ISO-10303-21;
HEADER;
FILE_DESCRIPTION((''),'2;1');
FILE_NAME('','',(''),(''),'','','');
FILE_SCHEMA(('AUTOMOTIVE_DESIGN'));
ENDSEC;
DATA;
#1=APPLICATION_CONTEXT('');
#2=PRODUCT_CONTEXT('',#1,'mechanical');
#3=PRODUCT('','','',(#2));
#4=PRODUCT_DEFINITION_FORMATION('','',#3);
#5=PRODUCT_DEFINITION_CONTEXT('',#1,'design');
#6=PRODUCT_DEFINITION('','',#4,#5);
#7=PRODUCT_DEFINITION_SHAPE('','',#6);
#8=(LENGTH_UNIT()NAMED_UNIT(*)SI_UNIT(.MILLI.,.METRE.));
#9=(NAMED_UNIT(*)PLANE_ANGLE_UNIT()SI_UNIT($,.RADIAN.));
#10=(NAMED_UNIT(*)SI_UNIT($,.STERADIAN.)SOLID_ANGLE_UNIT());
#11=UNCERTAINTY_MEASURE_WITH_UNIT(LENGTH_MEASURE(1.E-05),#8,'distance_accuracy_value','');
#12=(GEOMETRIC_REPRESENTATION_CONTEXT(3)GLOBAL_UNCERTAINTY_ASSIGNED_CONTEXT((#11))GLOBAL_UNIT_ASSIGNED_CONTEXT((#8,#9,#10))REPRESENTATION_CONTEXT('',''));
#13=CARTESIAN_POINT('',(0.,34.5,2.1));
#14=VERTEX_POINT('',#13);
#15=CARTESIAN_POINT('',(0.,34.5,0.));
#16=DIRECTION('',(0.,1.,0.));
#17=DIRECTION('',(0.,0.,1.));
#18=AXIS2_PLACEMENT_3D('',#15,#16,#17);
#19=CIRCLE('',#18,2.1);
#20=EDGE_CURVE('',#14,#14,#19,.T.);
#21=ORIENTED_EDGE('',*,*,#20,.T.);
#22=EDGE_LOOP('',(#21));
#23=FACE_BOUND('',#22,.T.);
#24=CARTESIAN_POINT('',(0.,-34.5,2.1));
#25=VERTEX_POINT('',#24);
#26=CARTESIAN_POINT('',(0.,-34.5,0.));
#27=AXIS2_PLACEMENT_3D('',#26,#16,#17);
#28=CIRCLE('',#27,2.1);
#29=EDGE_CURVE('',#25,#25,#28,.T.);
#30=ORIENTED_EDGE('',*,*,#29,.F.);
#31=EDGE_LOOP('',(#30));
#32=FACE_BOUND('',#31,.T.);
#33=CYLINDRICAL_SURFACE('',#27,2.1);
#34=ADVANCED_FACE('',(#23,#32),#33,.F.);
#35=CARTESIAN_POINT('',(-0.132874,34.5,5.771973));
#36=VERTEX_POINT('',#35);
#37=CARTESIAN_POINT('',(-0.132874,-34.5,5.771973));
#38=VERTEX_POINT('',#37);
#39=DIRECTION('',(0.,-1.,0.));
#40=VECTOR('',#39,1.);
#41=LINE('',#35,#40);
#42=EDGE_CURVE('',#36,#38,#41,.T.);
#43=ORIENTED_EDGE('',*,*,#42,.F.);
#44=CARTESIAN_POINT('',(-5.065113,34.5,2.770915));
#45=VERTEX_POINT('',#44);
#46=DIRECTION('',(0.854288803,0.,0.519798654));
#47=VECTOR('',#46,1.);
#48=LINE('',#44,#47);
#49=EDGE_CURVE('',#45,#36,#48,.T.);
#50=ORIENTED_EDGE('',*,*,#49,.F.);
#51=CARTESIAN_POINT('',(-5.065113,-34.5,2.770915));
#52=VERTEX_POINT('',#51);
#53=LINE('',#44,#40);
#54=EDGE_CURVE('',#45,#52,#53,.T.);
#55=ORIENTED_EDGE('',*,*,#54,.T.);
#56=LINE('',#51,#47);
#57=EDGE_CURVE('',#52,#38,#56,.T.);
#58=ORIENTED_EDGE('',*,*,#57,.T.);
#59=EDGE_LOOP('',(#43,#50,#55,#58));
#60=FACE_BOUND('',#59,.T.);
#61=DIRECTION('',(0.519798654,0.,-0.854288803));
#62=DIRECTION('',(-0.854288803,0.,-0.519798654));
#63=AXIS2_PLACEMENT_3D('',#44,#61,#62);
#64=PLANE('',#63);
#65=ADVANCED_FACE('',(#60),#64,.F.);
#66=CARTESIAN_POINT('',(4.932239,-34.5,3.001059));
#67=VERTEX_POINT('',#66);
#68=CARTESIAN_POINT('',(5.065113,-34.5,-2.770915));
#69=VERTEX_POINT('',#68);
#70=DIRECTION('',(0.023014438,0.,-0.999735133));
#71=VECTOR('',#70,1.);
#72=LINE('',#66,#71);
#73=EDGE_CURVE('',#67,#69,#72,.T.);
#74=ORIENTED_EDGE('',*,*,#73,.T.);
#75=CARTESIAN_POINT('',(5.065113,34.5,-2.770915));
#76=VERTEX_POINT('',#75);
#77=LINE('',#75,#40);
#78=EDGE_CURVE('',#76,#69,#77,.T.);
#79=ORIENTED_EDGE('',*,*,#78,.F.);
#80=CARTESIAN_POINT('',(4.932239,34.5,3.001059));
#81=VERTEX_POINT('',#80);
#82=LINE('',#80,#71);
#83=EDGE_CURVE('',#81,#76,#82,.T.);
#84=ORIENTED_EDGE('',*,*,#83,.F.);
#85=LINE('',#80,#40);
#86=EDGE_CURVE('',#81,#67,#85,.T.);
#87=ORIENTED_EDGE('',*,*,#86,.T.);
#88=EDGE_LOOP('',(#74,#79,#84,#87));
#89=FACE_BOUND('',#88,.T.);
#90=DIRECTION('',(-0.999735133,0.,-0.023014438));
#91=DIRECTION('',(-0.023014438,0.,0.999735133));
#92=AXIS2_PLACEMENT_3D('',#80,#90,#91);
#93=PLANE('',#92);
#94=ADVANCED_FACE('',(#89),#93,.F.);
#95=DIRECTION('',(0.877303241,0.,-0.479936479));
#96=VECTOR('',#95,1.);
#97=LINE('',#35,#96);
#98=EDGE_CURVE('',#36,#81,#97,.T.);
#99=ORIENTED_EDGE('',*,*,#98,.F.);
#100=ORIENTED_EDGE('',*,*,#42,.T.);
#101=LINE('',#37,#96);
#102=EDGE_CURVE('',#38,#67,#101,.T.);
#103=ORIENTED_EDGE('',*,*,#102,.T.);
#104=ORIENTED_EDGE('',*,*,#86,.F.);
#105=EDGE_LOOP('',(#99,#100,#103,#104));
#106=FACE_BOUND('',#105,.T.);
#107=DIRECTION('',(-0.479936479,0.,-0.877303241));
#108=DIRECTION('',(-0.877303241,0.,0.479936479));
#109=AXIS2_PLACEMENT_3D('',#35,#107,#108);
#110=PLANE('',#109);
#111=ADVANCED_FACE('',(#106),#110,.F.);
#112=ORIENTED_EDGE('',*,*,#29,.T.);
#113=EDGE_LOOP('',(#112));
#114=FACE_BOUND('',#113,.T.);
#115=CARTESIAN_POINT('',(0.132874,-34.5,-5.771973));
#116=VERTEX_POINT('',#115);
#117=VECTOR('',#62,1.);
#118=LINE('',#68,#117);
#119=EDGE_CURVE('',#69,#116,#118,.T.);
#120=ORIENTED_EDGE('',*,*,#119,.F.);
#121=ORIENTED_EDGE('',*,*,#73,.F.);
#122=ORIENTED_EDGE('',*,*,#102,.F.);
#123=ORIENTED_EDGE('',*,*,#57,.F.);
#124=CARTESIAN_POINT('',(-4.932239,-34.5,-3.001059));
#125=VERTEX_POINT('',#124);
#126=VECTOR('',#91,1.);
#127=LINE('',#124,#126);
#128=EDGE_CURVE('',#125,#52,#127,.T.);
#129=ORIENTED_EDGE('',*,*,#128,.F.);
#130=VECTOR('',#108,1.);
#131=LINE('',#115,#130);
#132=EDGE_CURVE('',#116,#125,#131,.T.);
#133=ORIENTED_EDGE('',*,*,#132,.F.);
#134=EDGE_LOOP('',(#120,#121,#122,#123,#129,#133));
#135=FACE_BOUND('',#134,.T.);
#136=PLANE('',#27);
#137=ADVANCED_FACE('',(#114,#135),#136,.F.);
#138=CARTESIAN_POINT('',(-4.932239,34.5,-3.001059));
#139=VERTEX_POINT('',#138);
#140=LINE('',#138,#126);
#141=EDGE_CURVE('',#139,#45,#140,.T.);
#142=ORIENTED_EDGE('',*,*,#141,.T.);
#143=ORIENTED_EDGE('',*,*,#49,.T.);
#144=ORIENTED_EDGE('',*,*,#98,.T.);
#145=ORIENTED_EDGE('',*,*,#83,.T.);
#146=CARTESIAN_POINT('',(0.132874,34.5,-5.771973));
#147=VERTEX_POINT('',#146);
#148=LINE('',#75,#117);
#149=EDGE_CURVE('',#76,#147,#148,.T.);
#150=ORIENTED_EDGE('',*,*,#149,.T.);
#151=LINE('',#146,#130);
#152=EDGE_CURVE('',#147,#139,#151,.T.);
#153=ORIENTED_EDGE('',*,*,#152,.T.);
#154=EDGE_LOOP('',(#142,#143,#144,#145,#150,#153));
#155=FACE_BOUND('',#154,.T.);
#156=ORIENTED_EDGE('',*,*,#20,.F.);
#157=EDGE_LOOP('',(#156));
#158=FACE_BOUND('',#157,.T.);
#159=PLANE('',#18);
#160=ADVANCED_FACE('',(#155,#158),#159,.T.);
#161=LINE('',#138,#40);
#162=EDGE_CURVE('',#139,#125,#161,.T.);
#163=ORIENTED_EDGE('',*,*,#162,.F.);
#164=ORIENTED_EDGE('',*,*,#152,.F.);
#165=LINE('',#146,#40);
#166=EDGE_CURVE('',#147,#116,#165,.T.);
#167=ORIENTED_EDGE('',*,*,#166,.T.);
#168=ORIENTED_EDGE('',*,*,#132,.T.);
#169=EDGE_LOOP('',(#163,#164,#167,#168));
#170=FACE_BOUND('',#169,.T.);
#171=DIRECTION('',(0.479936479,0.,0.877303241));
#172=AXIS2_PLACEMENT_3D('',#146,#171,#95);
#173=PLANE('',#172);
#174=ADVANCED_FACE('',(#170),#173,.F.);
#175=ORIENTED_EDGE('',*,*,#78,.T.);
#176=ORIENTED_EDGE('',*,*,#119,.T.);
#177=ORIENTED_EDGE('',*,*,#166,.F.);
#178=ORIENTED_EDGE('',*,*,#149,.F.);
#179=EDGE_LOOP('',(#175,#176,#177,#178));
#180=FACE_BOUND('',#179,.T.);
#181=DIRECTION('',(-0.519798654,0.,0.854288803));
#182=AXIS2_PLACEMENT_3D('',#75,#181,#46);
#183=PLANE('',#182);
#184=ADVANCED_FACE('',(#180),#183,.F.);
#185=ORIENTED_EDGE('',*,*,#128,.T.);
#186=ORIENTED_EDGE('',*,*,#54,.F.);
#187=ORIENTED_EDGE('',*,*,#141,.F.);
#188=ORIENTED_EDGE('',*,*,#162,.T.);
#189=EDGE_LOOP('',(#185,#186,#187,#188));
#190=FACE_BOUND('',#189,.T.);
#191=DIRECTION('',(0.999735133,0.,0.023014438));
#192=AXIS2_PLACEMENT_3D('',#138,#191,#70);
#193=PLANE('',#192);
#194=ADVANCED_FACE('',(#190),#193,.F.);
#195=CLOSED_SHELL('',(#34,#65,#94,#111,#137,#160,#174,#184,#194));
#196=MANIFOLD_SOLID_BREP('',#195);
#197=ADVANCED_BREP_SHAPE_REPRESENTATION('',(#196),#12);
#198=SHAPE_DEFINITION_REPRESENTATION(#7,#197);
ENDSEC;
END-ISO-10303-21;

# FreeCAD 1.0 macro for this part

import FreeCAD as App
import Part
import Sketcher
Q = App.Units.Quantity

doc = App.newDocument("Part")
body = doc.addObject("PartDesign::Body", "Body")

sketch1 = body.newObject("Sketcher::SketchObject", "Sketch")
sketch1.AttachmentSupport = (doc.getObject("XZ_Plane"), [""])
sketch1.MapMode = "FlatFace"
sketch1.addGeometry(Part.LineSegment(App.Vector(5.065113, -2.770915, 0), App.Vector(0.132874, -5.771973, 0)), False)
sketch1.addGeometry(Part.LineSegment(App.Vector(0.132874, -5.771973, 0), App.Vector(-4.932239, -3.001059, 0)), False)
sketch1.addGeometry(Part.LineSegment(App.Vector(-4.932239, -3.001059, 0), App.Vector(-5.065113, 2.770915, 0)), False)
sketch1.addGeometry(Part.LineSegment(App.Vector(-5.065113, 2.770915, 0), App.Vector(-0.132874, 5.771973, 0)), False)
sketch1.addGeometry(Part.LineSegment(App.Vector(-0.132874, 5.771973, 0), App.Vector(4.932239, 3.001059, 0)), False)
sketch1.addGeometry(Part.LineSegment(App.Vector(4.932239, 3.001059, 0), App.Vector(5.065113, -2.770915, 0)), False)
sketch1.addConstraint(Sketcher.Constraint("Coincident", 0, 2, 1, 1))
sketch1.addConstraint(Sketcher.Constraint("Coincident", 1, 2, 2, 1))
sketch1.addConstraint(Sketcher.Constraint("Coincident", 2, 2, 3, 1))
sketch1.addConstraint(Sketcher.Constraint("Coincident", 3, 2, 4, 1))
sketch1.addConstraint(Sketcher.Constraint("Coincident", 4, 2, 5, 1))
sketch1.addConstraint(Sketcher.Constraint("Coincident", 5, 2, 0, 1))
sketch1.addConstraint(Sketcher.Constraint("Symmetric", 0, 2, 3, 2, -1, 1))
sketch1.addConstraint(Sketcher.Constraint("Symmetric", 1, 2, 4, 2, -1, 1))
sketch1.addConstraint(Sketcher.Constraint("Symmetric", 2, 2, 5, 2, -1, 1))
sketch1.addConstraint(Sketcher.Constraint("Equal", 0, 1))
sketch1.addConstraint(Sketcher.Constraint("Equal", 1, 2))
sketch1.addConstraint(Sketcher.Constraint("DistanceX", 1, 2, -1, 1, Q("4.932239 mm")))
sketch1.addConstraint(Sketcher.Constraint("DistanceY", 1, 2, -1, 1, Q("3.001059 mm")))
sketch1.addConstraint(Sketcher.Constraint("DistanceY", 0, 2, 2, 2, Q("8.542888 mm")))
sketch1.addConstraint(Sketcher.Constraint("DistanceX", 2, 2, 3, 2, Q("4.932239 mm")))
pad1 = body.newObject("PartDesign::Pad", "Pad")
pad1.Profile = sketch1
pad1.Length = 69
pad1.Midplane = True

sketch2 = body.newObject("Sketcher::SketchObject", "Sketch001")
sketch2.AttachmentSupport = (doc.getObject("XZ_Plane"), [""])
sketch2.MapMode = "FlatFace"
sketch2.AttachmentOffset = App.Placement(App.Vector(0, 0, -41.5), App.Rotation())
sketch2.addGeometry(Part.Circle(App.Vector(0, 0, 0), App.Vector(0, 0, 1), 2.1), False)
sketch2.addConstraint(Sketcher.Constraint("Coincident", 0, 3, -1, 1))
sketch2.addConstraint(Sketcher.Constraint("Diameter", 0, Q("4.2 mm")))
pocket1 = body.newObject("PartDesign::Pocket", "Pocket")
pocket1.Profile = sketch2
pocket1.Type = "ThroughAll"
pocket1.Reversed = True

doc.recompute()
